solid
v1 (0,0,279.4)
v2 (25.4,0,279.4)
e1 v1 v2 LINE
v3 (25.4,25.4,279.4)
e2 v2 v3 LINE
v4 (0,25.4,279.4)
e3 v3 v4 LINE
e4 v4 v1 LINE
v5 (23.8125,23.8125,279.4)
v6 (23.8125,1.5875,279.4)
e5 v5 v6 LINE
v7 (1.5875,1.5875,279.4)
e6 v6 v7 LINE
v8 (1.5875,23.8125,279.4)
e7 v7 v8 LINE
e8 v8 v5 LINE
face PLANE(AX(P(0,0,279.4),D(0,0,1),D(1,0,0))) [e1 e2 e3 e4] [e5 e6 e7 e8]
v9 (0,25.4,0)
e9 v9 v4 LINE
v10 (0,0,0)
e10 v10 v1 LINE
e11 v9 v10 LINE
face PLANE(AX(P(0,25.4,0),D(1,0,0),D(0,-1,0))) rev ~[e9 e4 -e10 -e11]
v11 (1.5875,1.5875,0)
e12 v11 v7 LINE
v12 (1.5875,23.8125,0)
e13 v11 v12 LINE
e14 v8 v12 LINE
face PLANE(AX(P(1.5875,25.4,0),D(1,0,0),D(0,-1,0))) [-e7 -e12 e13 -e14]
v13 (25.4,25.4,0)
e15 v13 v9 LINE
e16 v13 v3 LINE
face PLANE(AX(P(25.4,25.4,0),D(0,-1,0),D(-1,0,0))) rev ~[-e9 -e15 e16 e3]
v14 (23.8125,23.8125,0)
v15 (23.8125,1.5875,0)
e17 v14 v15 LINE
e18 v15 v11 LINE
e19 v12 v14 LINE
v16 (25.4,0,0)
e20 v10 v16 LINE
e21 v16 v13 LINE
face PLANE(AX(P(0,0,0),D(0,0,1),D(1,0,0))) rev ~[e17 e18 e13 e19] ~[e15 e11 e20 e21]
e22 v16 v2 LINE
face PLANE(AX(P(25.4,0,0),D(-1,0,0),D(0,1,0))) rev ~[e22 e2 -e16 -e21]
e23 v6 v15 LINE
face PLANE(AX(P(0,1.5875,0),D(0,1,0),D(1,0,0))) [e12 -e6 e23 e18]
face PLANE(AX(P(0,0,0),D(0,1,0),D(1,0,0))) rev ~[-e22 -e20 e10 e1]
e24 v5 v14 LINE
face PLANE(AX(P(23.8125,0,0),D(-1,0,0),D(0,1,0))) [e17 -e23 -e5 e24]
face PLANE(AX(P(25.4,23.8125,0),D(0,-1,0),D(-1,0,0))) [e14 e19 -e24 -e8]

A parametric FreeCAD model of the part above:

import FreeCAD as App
import Part
import Sketcher
from FreeCAD import Vector
Q = App.Units.Quantity


def faces_at(feature, points):
    """Names of the faces that lie closest to the given points."""
    faces = feature.Shape.Faces
    near = lambda p: min(range(len(faces)), key=lambda i: faces[i].distToShape(Part.Vertex(*p))[0])
    return sorted({f"Face{near(p) + 1}" for p in points})


def add_polygon(sketch, points):
    """Adds a closed chain of lines whose ends are joined by coincident constraints."""
    first, n = sketch.GeometryCount, len(points)
    for a, b in zip(points, points[1:] + points[:1]):
        sketch.addGeometry(Part.LineSegment(App.Vector(*a, 0), App.Vector(*b, 0)), False)
    for i in range(n):
        sketch.addConstraint(Sketcher.Constraint("Coincident", first + i, 2, first + (i + 1) % n, 1))

doc = App.newDocument("Part")
body = doc.addObject("PartDesign::Body", "Body")

# Sketch on XY plane
sketch1 = doc.addObject("Sketcher::SketchObject", "Sketch")
body.addObject(sketch1)
sketch1.AttachmentSupport = (doc.XY_Plane, [""])
sketch1.MapMode = "FlatFace"
add_polygon(sketch1, [(0, 25.4), (0, 0), (25.4, 0), (25.4, 25.4)])  # lines 0-3
sketch1.addConstraint(Sketcher.Constraint("Vertical", 0))
sketch1.addConstraint(Sketcher.Constraint("Horizontal", 1))
sketch1.addConstraint(Sketcher.Constraint("Vertical", 2))
sketch1.addConstraint(Sketcher.Constraint("Horizontal", 3))
sketch1.addConstraint(Sketcher.Constraint("Coincident", 0, 2, -1, 1))
sketch1.addConstraint(Sketcher.Constraint("Equal", 3, 0))
sketch1.addConstraint(Sketcher.Constraint("DistanceX", 1, 1, 1, 2, Q("1 in")))
pad1 = doc.addObject("PartDesign::Pad", "Pad")
body.addObject(pad1)
pad1.Profile = sketch1
pad1.Length = Q("11 in")
doc.recompute()

thickness = doc.addObject("PartDesign::Thickness", "Thickness")
body.addObject(thickness)
thickness.Base = (pad1, faces_at(pad1, [(8.467, 16.933, 0), (8.467, 16.933, 279.4)]))
thickness.Value = Q("0.0625 in")
thickness.Reversed = True
thickness.Join = "Intersection"

doc.recompute()
